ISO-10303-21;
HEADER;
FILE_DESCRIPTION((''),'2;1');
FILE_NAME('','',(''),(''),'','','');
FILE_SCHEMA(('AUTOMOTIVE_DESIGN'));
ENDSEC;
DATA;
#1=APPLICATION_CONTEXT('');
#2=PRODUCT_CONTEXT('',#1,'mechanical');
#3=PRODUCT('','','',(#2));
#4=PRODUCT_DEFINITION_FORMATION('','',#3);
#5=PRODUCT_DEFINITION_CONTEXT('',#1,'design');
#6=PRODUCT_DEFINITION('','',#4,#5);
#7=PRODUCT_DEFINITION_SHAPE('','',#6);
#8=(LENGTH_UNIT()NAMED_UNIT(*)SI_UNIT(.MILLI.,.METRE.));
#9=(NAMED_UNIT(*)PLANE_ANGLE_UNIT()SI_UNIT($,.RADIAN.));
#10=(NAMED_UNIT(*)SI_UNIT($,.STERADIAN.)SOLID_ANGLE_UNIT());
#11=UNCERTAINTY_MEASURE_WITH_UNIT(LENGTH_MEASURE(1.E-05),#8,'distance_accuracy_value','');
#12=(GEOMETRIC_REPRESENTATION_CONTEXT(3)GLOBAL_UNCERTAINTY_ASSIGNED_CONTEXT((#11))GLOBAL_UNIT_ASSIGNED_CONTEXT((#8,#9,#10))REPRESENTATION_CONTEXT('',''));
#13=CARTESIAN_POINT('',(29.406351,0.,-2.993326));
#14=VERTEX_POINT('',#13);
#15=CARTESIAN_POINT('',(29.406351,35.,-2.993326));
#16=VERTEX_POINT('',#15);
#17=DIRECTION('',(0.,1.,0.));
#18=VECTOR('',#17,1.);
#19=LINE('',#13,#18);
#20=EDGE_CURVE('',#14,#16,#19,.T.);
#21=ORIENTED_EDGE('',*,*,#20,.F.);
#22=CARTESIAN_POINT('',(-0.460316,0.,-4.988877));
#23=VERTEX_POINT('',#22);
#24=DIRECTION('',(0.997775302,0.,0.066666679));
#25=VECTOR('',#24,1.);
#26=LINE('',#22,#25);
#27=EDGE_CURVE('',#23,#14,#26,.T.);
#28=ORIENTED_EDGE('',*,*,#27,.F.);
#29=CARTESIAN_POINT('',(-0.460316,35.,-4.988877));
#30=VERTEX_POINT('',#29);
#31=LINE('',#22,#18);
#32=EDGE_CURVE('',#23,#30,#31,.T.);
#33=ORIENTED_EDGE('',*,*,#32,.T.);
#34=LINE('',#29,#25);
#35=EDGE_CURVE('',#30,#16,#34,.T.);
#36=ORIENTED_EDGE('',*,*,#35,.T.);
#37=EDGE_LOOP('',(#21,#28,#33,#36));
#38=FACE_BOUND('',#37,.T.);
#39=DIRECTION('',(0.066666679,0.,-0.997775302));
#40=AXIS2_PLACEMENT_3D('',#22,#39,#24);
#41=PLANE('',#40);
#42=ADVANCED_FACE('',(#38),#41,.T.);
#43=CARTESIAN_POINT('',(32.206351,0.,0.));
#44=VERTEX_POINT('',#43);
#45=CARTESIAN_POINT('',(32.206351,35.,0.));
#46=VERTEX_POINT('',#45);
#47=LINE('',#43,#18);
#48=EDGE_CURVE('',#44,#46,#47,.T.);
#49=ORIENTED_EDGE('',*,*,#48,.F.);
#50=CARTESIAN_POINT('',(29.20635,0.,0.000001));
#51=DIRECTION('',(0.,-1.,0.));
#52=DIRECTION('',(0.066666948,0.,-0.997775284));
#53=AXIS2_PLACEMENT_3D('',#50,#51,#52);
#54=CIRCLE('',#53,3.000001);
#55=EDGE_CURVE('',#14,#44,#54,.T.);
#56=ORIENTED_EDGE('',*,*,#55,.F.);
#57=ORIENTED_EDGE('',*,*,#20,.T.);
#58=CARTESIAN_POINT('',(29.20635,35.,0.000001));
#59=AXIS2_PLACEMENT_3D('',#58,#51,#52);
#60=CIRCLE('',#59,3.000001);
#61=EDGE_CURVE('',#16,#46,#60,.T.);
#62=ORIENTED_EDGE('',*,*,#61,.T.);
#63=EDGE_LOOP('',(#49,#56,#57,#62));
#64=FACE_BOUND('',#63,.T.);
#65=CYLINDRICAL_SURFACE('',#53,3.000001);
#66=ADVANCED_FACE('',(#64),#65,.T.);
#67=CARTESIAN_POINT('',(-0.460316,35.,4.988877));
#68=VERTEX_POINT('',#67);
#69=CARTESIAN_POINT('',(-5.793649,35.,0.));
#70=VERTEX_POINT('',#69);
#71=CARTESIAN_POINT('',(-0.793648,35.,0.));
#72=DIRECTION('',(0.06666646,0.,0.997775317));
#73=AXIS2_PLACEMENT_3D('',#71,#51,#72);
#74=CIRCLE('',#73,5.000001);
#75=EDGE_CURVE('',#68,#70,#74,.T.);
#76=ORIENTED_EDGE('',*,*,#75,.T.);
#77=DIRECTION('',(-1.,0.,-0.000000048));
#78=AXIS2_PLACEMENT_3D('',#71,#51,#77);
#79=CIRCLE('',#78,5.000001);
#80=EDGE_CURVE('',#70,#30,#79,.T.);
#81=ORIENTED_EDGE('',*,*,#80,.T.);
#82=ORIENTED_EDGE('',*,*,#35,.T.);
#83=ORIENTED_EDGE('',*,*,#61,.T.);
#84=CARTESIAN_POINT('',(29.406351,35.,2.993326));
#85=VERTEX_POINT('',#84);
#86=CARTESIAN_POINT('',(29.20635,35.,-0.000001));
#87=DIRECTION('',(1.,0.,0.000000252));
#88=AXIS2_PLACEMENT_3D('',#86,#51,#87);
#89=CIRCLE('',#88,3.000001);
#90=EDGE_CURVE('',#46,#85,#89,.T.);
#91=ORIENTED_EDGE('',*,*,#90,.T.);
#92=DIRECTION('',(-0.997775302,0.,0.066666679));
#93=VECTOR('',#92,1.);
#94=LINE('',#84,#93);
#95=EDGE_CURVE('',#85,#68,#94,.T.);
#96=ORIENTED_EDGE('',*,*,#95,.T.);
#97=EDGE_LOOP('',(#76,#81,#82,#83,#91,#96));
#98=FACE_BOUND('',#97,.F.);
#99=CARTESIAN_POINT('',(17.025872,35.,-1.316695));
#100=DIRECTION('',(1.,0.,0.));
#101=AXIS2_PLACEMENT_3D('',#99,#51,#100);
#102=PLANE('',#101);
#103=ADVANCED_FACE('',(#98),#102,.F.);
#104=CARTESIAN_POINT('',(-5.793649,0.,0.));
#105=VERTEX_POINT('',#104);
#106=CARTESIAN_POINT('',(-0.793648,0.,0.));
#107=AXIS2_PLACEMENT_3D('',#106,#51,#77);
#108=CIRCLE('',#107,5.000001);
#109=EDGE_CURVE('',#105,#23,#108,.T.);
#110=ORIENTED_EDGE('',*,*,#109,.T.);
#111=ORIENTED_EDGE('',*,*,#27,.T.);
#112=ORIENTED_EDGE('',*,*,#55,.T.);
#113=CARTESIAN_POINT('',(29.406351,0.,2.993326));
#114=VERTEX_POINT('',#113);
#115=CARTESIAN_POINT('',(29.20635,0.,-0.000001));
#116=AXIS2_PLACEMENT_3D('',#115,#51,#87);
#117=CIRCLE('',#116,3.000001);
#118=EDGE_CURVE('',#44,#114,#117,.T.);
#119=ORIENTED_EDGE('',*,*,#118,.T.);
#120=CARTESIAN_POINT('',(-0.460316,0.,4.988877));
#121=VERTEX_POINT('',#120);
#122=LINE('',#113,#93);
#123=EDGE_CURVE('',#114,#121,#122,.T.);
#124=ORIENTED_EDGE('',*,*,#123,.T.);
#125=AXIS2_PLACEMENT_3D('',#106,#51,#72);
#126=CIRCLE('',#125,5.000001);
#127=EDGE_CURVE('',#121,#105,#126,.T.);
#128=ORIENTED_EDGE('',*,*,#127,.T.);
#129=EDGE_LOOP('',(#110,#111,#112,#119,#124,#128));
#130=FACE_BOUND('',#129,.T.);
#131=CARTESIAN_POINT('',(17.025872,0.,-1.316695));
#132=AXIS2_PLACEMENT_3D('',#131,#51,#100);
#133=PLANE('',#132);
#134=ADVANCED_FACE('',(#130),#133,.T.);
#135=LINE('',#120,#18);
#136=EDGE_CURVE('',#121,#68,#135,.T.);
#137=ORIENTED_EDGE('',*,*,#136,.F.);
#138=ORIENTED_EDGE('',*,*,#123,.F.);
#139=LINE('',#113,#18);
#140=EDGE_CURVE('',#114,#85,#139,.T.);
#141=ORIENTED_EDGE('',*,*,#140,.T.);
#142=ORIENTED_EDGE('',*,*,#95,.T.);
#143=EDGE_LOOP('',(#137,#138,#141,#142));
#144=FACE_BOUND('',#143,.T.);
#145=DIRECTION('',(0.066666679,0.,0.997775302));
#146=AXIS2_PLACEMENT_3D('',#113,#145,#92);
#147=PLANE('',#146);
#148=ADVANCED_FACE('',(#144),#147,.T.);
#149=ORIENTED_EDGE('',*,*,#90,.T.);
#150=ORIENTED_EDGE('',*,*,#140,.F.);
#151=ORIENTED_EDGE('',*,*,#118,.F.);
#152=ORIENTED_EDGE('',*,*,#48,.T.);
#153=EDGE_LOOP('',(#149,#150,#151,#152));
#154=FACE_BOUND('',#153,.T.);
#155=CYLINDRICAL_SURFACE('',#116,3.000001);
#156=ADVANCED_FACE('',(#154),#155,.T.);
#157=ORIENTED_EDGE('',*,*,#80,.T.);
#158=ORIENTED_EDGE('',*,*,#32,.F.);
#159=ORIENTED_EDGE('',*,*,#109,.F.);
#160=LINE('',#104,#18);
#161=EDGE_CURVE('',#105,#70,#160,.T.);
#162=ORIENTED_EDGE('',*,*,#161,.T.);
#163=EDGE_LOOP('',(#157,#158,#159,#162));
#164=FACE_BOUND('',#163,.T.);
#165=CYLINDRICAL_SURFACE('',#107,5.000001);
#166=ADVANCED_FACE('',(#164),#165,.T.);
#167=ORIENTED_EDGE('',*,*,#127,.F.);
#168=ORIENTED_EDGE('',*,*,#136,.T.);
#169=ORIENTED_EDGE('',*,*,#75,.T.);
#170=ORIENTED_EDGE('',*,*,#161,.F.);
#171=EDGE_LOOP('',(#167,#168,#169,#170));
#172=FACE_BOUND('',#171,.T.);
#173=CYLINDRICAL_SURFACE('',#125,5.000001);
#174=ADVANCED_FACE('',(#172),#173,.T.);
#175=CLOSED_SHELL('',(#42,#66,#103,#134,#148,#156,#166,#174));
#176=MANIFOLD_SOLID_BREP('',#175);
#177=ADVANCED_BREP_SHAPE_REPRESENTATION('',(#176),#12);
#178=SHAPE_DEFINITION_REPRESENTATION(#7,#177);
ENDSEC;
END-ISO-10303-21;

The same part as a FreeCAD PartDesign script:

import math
import FreeCAD as App
import Part
import Sketcher

V = App.Vector

doc = App.newDocument("Part")
body = doc.addObject("PartDesign::Body", "Body")

# Sketch on XZ plane
sketch1 = doc.addObject("Sketcher::SketchObject", "Sketch")
body.addObject(sketch1)
sketch1.AttachmentSupport = (doc.XZ_Plane, [""])
sketch1.MapMode = "FlatFace"
sketch1.addGeometry([
    Part.ArcOfCircle(Part.Circle(V(-0.793648, 0, 0), V(0, 0, 1), 5.000001), math.radians(-179.999997), math.radians(-86.177458)),  # 0
    Part.LineSegment(V(-0.460316, -4.988877, 0), V(29.406351, -2.993326, 0)),  # 1
    Part.ArcOfCircle(Part.Circle(V(29.20635, 0.000001, 0), V(0, 0, 1), 3.000001), math.radians(-86.17743), math.radians(-0.000014)),  # 2
    Part.ArcOfCircle(Part.Circle(V(29.20635, -0.000001, 0), V(0, 0, 1), 3.000001), math.radians(0.000014), math.radians(86.17743)),  # 3
    Part.LineSegment(V(29.406351, 2.993326, 0), V(-0.460316, 4.988877, 0)),  # 4
    Part.ArcOfCircle(Part.Circle(V(-0.793648, 0, 0), V(0, 0, 1), 5.000001), math.radians(86.177458), math.radians(179.999997)),  # 5
], False)
sketch1.addConstraint([
    Sketcher.Constraint("Tangent", 0, 2, 1, 1),
    Sketcher.Constraint("Tangent", 1, 2, 2, 1),
    Sketcher.Constraint("Tangent", 2, 2, 3, 1),
    Sketcher.Constraint("Tangent", 3, 2, 4, 1),
    Sketcher.Constraint("Tangent", 4, 2, 5, 1),
    Sketcher.Constraint("Tangent", 5, 2, 0, 1),
    Sketcher.Constraint("Equal", 2, 3),
    Sketcher.Constraint("Equal", 0, 5),
    Sketcher.Constraint("Symmetric", 1, 2, 3, 2, -1),
    Sketcher.Constraint("PointOnObject", 2, 2, -1),
    Sketcher.Constraint("PointOnObject", 5, 2, -1),
    Sketcher.Constraint("Radius", 0, 5.000001),
    Sketcher.Constraint("Radius", 2, 3.000001),
    Sketcher.Constraint("DistanceX", 0, 3, 2, 3, 29.999998),
    Sketcher.Constraint("DistanceX", 0, 3, -1, 1, 0.793648),
])
pad1 = doc.addObject("PartDesign::Pad", "Pad")
body.addObject(pad1)
pad1.Profile = sketch1
pad1.Length = 35
pad1.Reversed = True

doc.recompute()
